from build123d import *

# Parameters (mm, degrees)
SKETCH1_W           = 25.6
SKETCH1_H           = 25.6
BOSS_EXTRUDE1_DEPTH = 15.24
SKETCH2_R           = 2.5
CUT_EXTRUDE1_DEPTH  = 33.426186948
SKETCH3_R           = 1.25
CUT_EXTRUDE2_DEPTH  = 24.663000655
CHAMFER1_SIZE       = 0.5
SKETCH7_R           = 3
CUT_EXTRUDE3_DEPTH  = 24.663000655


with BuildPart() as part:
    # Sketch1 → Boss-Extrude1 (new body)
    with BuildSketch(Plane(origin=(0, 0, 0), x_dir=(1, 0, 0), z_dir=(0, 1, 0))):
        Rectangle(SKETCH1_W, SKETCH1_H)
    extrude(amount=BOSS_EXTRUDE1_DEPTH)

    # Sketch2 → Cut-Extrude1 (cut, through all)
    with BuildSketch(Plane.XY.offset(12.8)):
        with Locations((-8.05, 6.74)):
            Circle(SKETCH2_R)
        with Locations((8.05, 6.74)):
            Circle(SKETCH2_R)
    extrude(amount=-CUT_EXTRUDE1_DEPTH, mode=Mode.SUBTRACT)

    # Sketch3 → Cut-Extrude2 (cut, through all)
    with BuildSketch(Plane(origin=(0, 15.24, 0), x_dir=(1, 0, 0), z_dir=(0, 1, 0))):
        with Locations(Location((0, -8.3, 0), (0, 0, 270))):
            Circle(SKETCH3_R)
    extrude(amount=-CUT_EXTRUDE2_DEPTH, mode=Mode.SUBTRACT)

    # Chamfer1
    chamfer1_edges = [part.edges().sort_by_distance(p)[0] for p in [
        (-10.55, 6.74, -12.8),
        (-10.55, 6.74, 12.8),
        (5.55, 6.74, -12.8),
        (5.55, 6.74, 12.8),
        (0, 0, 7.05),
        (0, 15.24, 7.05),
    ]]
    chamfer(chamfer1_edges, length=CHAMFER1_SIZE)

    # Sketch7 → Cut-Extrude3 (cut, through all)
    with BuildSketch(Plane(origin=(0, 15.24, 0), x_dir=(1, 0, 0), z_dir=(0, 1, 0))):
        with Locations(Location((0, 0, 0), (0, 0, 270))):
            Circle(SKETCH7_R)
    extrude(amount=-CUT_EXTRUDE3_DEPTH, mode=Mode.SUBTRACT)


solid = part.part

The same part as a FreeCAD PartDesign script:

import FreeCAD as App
import Part
import Sketcher
from FreeCAD import Vector


def edges_at(feature, points):
    """Names of the edges that pass closest to the given points."""
    edges = feature.Shape.Edges
    near = lambda p: min(range(len(edges)), key=lambda i: edges[i].distToShape(Part.Vertex(*p))[0])
    return sorted({f"Edge{near(p) + 1}" for p in points})


def add_polygon(sketch, points):
    """Adds a closed chain of lines whose ends are joined by coincident constraints."""
    first, n = sketch.GeometryCount, len(points)
    for a, b in zip(points, points[1:] + points[:1]):
        sketch.addGeometry(Part.LineSegment(App.Vector(*a, 0), App.Vector(*b, 0)), False)
    for i in range(n):
        sketch.addConstraint(Sketcher.Constraint("Coincident", first + i, 2, first + (i + 1) % n, 1))

doc = App.newDocument("Part")
body = doc.addObject("PartDesign::Body", "Body")

sketch1 = doc.addObject("Sketcher::SketchObject", "Sketch")
body.addObject(sketch1)
sketch1.AttachmentSupport = (doc.XZ_Plane, [""])
sketch1.MapMode = "FlatFace"
add_polygon(sketch1, [(-12.8, -12.8), (-12.8, 12.8), (12.8, 12.8), (12.8, -12.8)])
sketch1.addConstraint(Sketcher.Constraint("Vertical", 0))
sketch1.addConstraint(Sketcher.Constraint("Horizontal", 1))
sketch1.addConstraint(Sketcher.Constraint("Vertical", 2))
sketch1.addConstraint(Sketcher.Constraint("Horizontal", 3))
sketch1.addConstraint(Sketcher.Constraint("Symmetric", 0, 2, 2, 2, -1, 1))
sketch1.addConstraint(Sketcher.Constraint("Equal", 3, 0))
sketch1.addConstraint(Sketcher.Constraint("DistanceX", 1, 1, 1, 2, 25.6))
pad1 = doc.addObject("PartDesign::Pad", "Pad")
body.addObject(pad1)
pad1.Profile = sketch1
pad1.Length = 15.24
pad1.Reversed = True

sketch2 = doc.addObject("Sketcher::SketchObject", "Sketch001")
body.addObject(sketch2)
sketch2.AttachmentSupport = (doc.XY_Plane, [""])
sketch2.MapMode = "FlatFace"
sketch2.AttachmentOffset = App.Placement(Vector(0, 0, 12.8), App.Rotation())
sketch2.addGeometry(Part.Circle(Vector(-8.05, 6.74, 0), Vector(0, 0, 1), 2.5), False)
sketch2.addGeometry(Part.Circle(Vector(8.05, 6.74, 0), Vector(0, 0, 1), 2.5), False)
sketch2.addConstraint(Sketcher.Constraint("Equal", 0, 1))
sketch2.addConstraint(Sketcher.Constraint("Symmetric", 0, 3, 1, 3, -2))
sketch2.addConstraint(Sketcher.Constraint("Diameter", 0, 5.0))
sketch2.addConstraint(Sketcher.Constraint("DistanceX", 0, 3, 1, 3, 16.1))
sketch2.addConstraint(Sketcher.Constraint("DistanceY", -1, 1, 0, 3, 6.74))
pocket1 = doc.addObject("PartDesign::Pocket", "Pocket")
body.addObject(pocket1)
pocket1.Profile = sketch2
pocket1.Type = "ThroughAll"

sketch3 = doc.addObject("Sketcher::SketchObject", "Sketch002")
body.addObject(sketch3)
sketch3.AttachmentSupport = (doc.XZ_Plane, [""])
sketch3.MapMode = "FlatFace"
sketch3.AttachmentOffset = App.Placement(Vector(0, 0, -15.24), App.Rotation())
sketch3.addGeometry(Part.Circle(Vector(0, 8.3, 0), Vector(0, 0, 1), 1.25), False)
sketch3.addConstraint(Sketcher.Constraint("PointOnObject", 0, 3, -2))
sketch3.addConstraint(Sketcher.Constraint("Diameter", 0, 2.5))
sketch3.addConstraint(Sketcher.Constraint("DistanceY", -1, 1, 0, 3, 8.3))
pocket2 = doc.addObject("PartDesign::Pocket", "Pocket001")
body.addObject(pocket2)
pocket2.Profile = sketch3
pocket2.Type = "ThroughAll"
pocket2.Reversed = True
doc.recompute()

chamfer = doc.addObject("PartDesign::Chamfer", "Chamfer")
body.addObject(chamfer)
chamfer.Base = (pocket2, edges_at(pocket2, [
    (-10.55, 6.74, -12.8),
    (-10.55, 6.74, 12.8),
    (5.55, 6.74, -12.8),
    (5.55, 6.74, 12.8),
    (0, 0, 7.05),
    (0, 15.24, 7.05),
]))
chamfer.Size = 0.5

sketch4 = doc.addObject("Sketcher::SketchObject", "Sketch003")
body.addObject(sketch4)
sketch4.AttachmentSupport = (doc.XZ_Plane, [""])
sketch4.MapMode = "FlatFace"
sketch4.AttachmentOffset = App.Placement(Vector(0, 0, -15.24), App.Rotation())
sketch4.addGeometry(Part.Circle(Vector(0, 0, 0), Vector(0, 0, 1), 3), False)
sketch4.addConstraint(Sketcher.Constraint("Coincident", 0, 3, -1, 1))
sketch4.addConstraint(Sketcher.Constraint("Diameter", 0, 6.0))
pocket3 = doc.addObject("PartDesign::Pocket", "Pocket002")
body.addObject(pocket3)
pocket3.Profile = sketch4
pocket3.Type = "ThroughAll"
pocket3.Reversed = True

doc.recompute()
